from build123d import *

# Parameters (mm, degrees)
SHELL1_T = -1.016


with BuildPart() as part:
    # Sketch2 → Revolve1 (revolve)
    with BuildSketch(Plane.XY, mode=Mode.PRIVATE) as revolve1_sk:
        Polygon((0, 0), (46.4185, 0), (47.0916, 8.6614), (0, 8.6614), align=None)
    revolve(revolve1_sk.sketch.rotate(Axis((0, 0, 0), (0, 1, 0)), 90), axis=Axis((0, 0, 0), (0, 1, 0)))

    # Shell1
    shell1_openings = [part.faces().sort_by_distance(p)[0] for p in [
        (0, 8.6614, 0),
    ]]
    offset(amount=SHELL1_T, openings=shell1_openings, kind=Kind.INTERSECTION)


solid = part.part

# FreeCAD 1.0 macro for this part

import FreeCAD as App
import Part
import Sketcher

V = App.Vector
Q = App.Units.Quantity


def faces_at(feature, points):
    """Names of the faces that lie closest to the given points."""
    faces = feature.Shape.Faces
    near = lambda p: min(range(len(faces)), key=lambda i: faces[i].distToShape(Part.Vertex(*p))[0])
    return sorted({f"Face{near(p) + 1}" for p in points})


def add_polygon(sketch, points):
    """Adds a closed chain of lines whose ends are joined by coincident constraints."""
    first, n = sketch.GeometryCount, len(points)
    for a, b in zip(points, points[1:] + points[:1]):
        sketch.addGeometry(Part.LineSegment(App.Vector(*a, 0), App.Vector(*b, 0)), False)
    for i in range(n):
        sketch.addConstraint(Sketcher.Constraint("Coincident", first + i, 2, first + (i + 1) % n, 1))

doc = App.newDocument("Part")
body = doc.addObject("PartDesign::Body", "Body")

# Sketch on XY plane
sketch1 = body.newObject("Sketcher::SketchObject", "Sketch")
sketch1.AttachmentSupport = (doc.getObject("XY_Plane"), [""])
sketch1.MapMode = "FlatFace"
add_polygon(sketch1, [(0, 0), (46.4185, 0), (47.0916, 8.6614), (0, 8.6614)])  # lines 0-3
sketch1.addConstraint([
    Sketcher.Constraint("Horizontal", 0),
    Sketcher.Constraint("Horizontal", 2),
    Sketcher.Constraint("Vertical", 3),
    Sketcher.Constraint("Coincident", 3, 2, -1, 1),
    Sketcher.Constraint("DistanceX", 2, 2, 2, 1, Q("1.854 in")),
    Sketcher.Constraint("DistanceY", 3, 2, 3, 1, Q("0.341 in")),
    Sketcher.Constraint("DistanceX", 0, 1, 0, 2, Q("1.8275 in")),
])
revolution = body.newObject("PartDesign::Revolution", "Revolution")
revolution.Profile = sketch1
revolution.ReferenceAxis = (sketch1, ["V_Axis"])
revolution.Angle = 360
doc.recompute()

thickness = body.newObject("PartDesign::Thickness", "Thickness")
thickness.Base = (revolution, faces_at(revolution, [(0, 8.661, 0)]))
thickness.Value = Q("0.04 in")
thickness.Reversed = True
thickness.Join = "Intersection"

doc.recompute()
